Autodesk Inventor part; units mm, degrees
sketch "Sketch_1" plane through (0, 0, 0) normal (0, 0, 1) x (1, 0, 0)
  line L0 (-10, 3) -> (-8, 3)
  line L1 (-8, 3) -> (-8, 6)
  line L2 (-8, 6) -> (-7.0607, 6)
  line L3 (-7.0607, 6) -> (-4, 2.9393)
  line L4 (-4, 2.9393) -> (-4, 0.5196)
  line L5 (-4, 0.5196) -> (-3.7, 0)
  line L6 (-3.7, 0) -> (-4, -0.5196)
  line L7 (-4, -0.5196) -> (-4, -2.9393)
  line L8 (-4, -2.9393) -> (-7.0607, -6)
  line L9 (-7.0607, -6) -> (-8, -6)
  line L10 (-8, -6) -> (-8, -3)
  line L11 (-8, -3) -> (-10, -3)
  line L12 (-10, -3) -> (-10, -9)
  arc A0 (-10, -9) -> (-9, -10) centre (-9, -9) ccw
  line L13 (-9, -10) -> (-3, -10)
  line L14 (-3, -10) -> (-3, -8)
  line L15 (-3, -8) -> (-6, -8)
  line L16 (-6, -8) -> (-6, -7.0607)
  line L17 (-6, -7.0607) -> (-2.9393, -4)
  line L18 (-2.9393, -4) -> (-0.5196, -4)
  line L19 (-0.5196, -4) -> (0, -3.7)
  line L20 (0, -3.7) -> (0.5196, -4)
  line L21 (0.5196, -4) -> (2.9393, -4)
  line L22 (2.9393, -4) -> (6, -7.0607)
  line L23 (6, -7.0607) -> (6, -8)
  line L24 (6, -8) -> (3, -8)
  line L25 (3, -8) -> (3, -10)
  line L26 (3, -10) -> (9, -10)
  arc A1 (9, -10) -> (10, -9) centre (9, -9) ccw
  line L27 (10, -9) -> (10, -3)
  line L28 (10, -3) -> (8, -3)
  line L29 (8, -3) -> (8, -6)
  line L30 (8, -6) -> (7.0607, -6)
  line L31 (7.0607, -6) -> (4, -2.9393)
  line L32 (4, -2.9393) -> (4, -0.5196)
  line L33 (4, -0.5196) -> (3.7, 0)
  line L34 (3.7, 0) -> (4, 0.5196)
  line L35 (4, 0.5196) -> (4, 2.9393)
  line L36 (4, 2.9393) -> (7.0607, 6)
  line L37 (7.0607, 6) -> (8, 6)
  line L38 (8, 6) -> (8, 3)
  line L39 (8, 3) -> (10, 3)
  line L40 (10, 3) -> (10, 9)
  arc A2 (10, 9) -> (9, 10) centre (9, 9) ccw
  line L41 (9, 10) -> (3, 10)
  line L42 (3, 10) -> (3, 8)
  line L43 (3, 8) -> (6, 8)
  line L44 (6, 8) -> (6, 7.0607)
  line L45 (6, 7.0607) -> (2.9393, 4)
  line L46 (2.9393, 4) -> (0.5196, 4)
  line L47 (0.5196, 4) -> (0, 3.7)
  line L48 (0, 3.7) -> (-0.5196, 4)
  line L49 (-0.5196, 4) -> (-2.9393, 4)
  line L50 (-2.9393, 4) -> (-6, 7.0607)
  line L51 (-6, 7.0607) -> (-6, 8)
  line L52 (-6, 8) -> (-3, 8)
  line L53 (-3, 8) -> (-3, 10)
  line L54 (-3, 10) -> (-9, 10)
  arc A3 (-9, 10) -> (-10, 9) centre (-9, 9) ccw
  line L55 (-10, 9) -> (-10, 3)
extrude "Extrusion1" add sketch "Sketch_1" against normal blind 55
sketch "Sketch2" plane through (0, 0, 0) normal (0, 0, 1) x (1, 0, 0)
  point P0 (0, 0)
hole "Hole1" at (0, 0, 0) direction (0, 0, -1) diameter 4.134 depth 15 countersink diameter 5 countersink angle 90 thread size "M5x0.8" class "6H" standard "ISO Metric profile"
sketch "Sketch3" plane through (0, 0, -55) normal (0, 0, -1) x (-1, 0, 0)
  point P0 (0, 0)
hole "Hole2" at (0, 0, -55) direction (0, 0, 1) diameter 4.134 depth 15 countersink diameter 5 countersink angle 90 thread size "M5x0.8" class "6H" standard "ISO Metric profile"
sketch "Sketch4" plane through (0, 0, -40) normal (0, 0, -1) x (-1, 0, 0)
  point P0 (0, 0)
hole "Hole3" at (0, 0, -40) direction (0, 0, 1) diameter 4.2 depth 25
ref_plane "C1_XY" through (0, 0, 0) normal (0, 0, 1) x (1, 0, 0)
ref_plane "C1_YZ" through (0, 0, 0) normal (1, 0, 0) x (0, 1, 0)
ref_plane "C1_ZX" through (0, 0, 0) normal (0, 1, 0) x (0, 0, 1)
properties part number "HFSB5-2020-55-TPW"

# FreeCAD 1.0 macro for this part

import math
import FreeCAD as App
import Part
import Sketcher
Q = App.Units.Quantity

doc = App.newDocument("Part")
body = doc.addObject("PartDesign::Body", "Body")

# Sketch on XY plane
sketch1 = body.newObject("Sketcher::SketchObject", "Sketch")
sketch1.AttachmentSupport = (doc.getObject("XY_Plane"), [""])
sketch1.MapMode = "FlatFace"
sketch1.addGeometry([
    Part.LineSegment(App.Vector(-10, 9, 0), App.Vector(-10, 3, 0)),  # 0
    Part.LineSegment(App.Vector(-10, 3, 0), App.Vector(-8, 3, 0)),  # 1
    Part.LineSegment(App.Vector(-8, 3, 0), App.Vector(-8, 6, 0)),  # 2
    Part.LineSegment(App.Vector(-8, 6, 0), App.Vector(-7.1, 6, 0)),  # 3
    Part.LineSegment(App.Vector(-7.1, 6, 0), App.Vector(-4, 2.9, 0)),  # 4
    Part.LineSegment(App.Vector(-4, 2.9, 0), App.Vector(-4, 0.5, 0)),  # 5
    Part.LineSegment(App.Vector(-4, 0.5, 0), App.Vector(-3.7, 0, 0)),  # 6
    Part.LineSegment(App.Vector(-3.7, 0, 0), App.Vector(-4, -0.5, 0)),  # 7
    Part.LineSegment(App.Vector(-4, -0.5, 0), App.Vector(-4, -2.9, 0)),  # 8
    Part.LineSegment(App.Vector(-4, -2.9, 0), App.Vector(-7.1, -6, 0)),  # 9
    Part.LineSegment(App.Vector(-7.1, -6, 0), App.Vector(-8, -6, 0)),  # 10
    Part.LineSegment(App.Vector(-8, -6, 0), App.Vector(-8, -3, 0)),  # 11
    Part.LineSegment(App.Vector(-8, -3, 0), App.Vector(-10, -3, 0)),  # 12
    Part.LineSegment(App.Vector(-10, -3, 0), App.Vector(-10, -9, 0)),  # 13
    Part.ArcOfCircle(Part.Circle(App.Vector(-9, -9, 0), App.Vector(0, 0, 1), 1), math.radians(180), math.radians(270)),  # 14
    Part.LineSegment(App.Vector(-9, -10, 0), App.Vector(-3, -10, 0)),  # 15
    Part.LineSegment(App.Vector(-3, -10, 0), App.Vector(-3, -8, 0)),  # 16
    Part.LineSegment(App.Vector(-3, -8, 0), App.Vector(-6, -8, 0)),  # 17
    Part.LineSegment(App.Vector(-6, -8, 0), App.Vector(-6, -7.1, 0)),  # 18
    Part.LineSegment(App.Vector(-6, -7.1, 0), App.Vector(-2.9, -4, 0)),  # 19
    Part.LineSegment(App.Vector(-2.9, -4, 0), App.Vector(-0.5, -4, 0)),  # 20
    Part.LineSegment(App.Vector(-0.5, -4, 0), App.Vector(0, -3.7, 0)),  # 21
    Part.LineSegment(App.Vector(0, -3.7, 0), App.Vector(0.5, -4, 0)),  # 22
    Part.LineSegment(App.Vector(0.5, -4, 0), App.Vector(2.9, -4, 0)),  # 23
    Part.LineSegment(App.Vector(2.9, -4, 0), App.Vector(6, -7.1, 0)),  # 24
    Part.LineSegment(App.Vector(6, -7.1, 0), App.Vector(6, -8, 0)),  # 25
    Part.LineSegment(App.Vector(6, -8, 0), App.Vector(3, -8, 0)),  # 26
    Part.LineSegment(App.Vector(3, -8, 0), App.Vector(3, -10, 0)),  # 27
    Part.LineSegment(App.Vector(3, -10, 0), App.Vector(9, -10, 0)),  # 28
    Part.ArcOfCircle(Part.Circle(App.Vector(9, -9, 0), App.Vector(0, 0, 1), 1), math.radians(-90), math.radians(0)),  # 29
    Part.LineSegment(App.Vector(10, -9, 0), App.Vector(10, -3, 0)),  # 30
    Part.LineSegment(App.Vector(10, -3, 0), App.Vector(8, -3, 0)),  # 31
    Part.LineSegment(App.Vector(8, -3, 0), App.Vector(8, -6, 0)),  # 32
    Part.LineSegment(App.Vector(8, -6, 0), App.Vector(7.1, -6, 0)),  # 33
    Part.LineSegment(App.Vector(7.1, -6, 0), App.Vector(4, -2.9, 0)),  # 34
    Part.LineSegment(App.Vector(4, -2.9, 0), App.Vector(4, -0.5, 0)),  # 35
    Part.LineSegment(App.Vector(4, -0.5, 0), App.Vector(3.7, 0, 0)),  # 36
    Part.LineSegment(App.Vector(3.7, 0, 0), App.Vector(4, 0.5, 0)),  # 37
    Part.LineSegment(App.Vector(4, 0.5, 0), App.Vector(4, 2.9, 0)),  # 38
    Part.LineSegment(App.Vector(4, 2.9, 0), App.Vector(7.1, 6, 0)),  # 39
    Part.LineSegment(App.Vector(7.1, 6, 0), App.Vector(8, 6, 0)),  # 40
    Part.LineSegment(App.Vector(8, 6, 0), App.Vector(8, 3, 0)),  # 41
    Part.LineSegment(App.Vector(8, 3, 0), App.Vector(10, 3, 0)),  # 42
    Part.LineSegment(App.Vector(10, 3, 0), App.Vector(10, 9, 0)),  # 43
    Part.ArcOfCircle(Part.Circle(App.Vector(9, 9, 0), App.Vector(0, 0, 1), 1), math.radians(0), math.radians(90)),  # 44
    Part.LineSegment(App.Vector(9, 10, 0), App.Vector(3, 10, 0)),  # 45
    Part.LineSegment(App.Vector(3, 10, 0), App.Vector(3, 8, 0)),  # 46
    Part.LineSegment(App.Vector(3, 8, 0), App.Vector(6, 8, 0)),  # 47
    Part.LineSegment(App.Vector(6, 8, 0), App.Vector(6, 7.1, 0)),  # 48
    Part.LineSegment(App.Vector(6, 7.1, 0), App.Vector(2.9, 4, 0)),  # 49
    Part.LineSegment(App.Vector(2.9, 4, 0), App.Vector(0.5, 4, 0)),  # 50
    Part.LineSegment(App.Vector(0.5, 4, 0), App.Vector(0, 3.7, 0)),  # 51
    Part.LineSegment(App.Vector(0, 3.7, 0), App.Vector(-0.5, 4, 0)),  # 52
    Part.LineSegment(App.Vector(-0.5, 4, 0), App.Vector(-2.9, 4, 0)),  # 53
    Part.LineSegment(App.Vector(-2.9, 4, 0), App.Vector(-6, 7.1, 0)),  # 54
    Part.LineSegment(App.Vector(-6, 7.1, 0), App.Vector(-6, 8, 0)),  # 55
    Part.LineSegment(App.Vector(-6, 8, 0), App.Vector(-3, 8, 0)),  # 56
    Part.LineSegment(App.Vector(-3, 8, 0), App.Vector(-3, 10, 0)),  # 57
    Part.LineSegment(App.Vector(-3, 10, 0), App.Vector(-9, 10, 0)),  # 58
    Part.ArcOfCircle(Part.Circle(App.Vector(-9, 9, 0), App.Vector(0, 0, 1), 1), math.radians(90), math.radians(180)),  # 59
], False)
sketch1.addConstraint([
    Sketcher.Constraint("Coincident", 0, 2, 1, 1),
    Sketcher.Constraint("Coincident", 1, 2, 2, 1),
    Sketcher.Constraint("Coincident", 2, 2, 3, 1),
    Sketcher.Constraint("Coincident", 3, 2, 4, 1),
    Sketcher.Constraint("Coincident", 4, 2, 5, 1),
    Sketcher.Constraint("Coincident", 5, 2, 6, 1),
    Sketcher.Constraint("Coincident", 6, 2, 7, 1),
    Sketcher.Constraint("Coincident", 7, 2, 8, 1),
    Sketcher.Constraint("Coincident", 8, 2, 9, 1),
    Sketcher.Constraint("Coincident", 9, 2, 10, 1),
    Sketcher.Constraint("Coincident", 10, 2, 11, 1),
    Sketcher.Constraint("Coincident", 11, 2, 12, 1),
    Sketcher.Constraint("Coincident", 12, 2, 13, 1),
    Sketcher.Constraint("Tangent", 13, 2, 14, 1),
    Sketcher.Constraint("Tangent", 14, 2, 15, 1),
    Sketcher.Constraint("Coincident", 15, 2, 16, 1),
    Sketcher.Constraint("Coincident", 16, 2, 17, 1),
    Sketcher.Constraint("Coincident", 17, 2, 18, 1),
    Sketcher.Constraint("Coincident", 18, 2, 19, 1),
    Sketcher.Constraint("Coincident", 19, 2, 20, 1),
    Sketcher.Constraint("Coincident", 20, 2, 21, 1),
    Sketcher.Constraint("Coincident", 21, 2, 22, 1),
    Sketcher.Constraint("Coincident", 22, 2, 23, 1),
    Sketcher.Constraint("Coincident", 23, 2, 24, 1),
    Sketcher.Constraint("Coincident", 24, 2, 25, 1),
    Sketcher.Constraint("Coincident", 25, 2, 26, 1),
    Sketcher.Constraint("Coincident", 26, 2, 27, 1),
    Sketcher.Constraint("Coincident", 27, 2, 28, 1),
    Sketcher.Constraint("Tangent", 28, 2, 29, 1),
    Sketcher.Constraint("Tangent", 29, 2, 30, 1),
    Sketcher.Constraint("Coincident", 30, 2, 31, 1),
    Sketcher.Constraint("Coincident", 31, 2, 32, 1),
    Sketcher.Constraint("Coincident", 32, 2, 33, 1),
    Sketcher.Constraint("Coincident", 33, 2, 34, 1),
    Sketcher.Constraint("Coincident", 34, 2, 35, 1),
    Sketcher.Constraint("Coincident", 35, 2, 36, 1),
    Sketcher.Constraint("Coincident", 36, 2, 37, 1),
    Sketcher.Constraint("Coincident", 37, 2, 38, 1),
    Sketcher.Constraint("Coincident", 38, 2, 39, 1),
    Sketcher.Constraint("Coincident", 39, 2, 40, 1),
    Sketcher.Constraint("Coincident", 40, 2, 41, 1),
    Sketcher.Constraint("Coincident", 41, 2, 42, 1),
    Sketcher.Constraint("Coincident", 42, 2, 43, 1),
    Sketcher.Constraint("Tangent", 43, 2, 44, 1),
    Sketcher.Constraint("Tangent", 44, 2, 45, 1),
    Sketcher.Constraint("Coincident", 45, 2, 46, 1),
    Sketcher.Constraint("Coincident", 46, 2, 47, 1),
    Sketcher.Constraint("Coincident", 47, 2, 48, 1),
    Sketcher.Constraint("Coincident", 48, 2, 49, 1),
    Sketcher.Constraint("Coincident", 49, 2, 50, 1),
    Sketcher.Constraint("Coincident", 50, 2, 51, 1),
    Sketcher.Constraint("Coincident", 51, 2, 52, 1),
    Sketcher.Constraint("Coincident", 52, 2, 53, 1),
    Sketcher.Constraint("Coincident", 53, 2, 54, 1),
    Sketcher.Constraint("Coincident", 54, 2, 55, 1),
    Sketcher.Constraint("Coincident", 55, 2, 56, 1),
    Sketcher.Constraint("Coincident", 56, 2, 57, 1),
    Sketcher.Constraint("Coincident", 57, 2, 58, 1),
    Sketcher.Constraint("Tangent", 58, 2, 59, 1),
    Sketcher.Constraint("Tangent", 59, 2, 0, 1),
    Sketcher.Constraint("Vertical", 0),
    Sketcher.Constraint("Horizontal", 1),
    Sketcher.Constraint("Vertical", 2),
    Sketcher.Constraint("Horizontal", 3),
    Sketcher.Constraint("Vertical", 5),
    Sketcher.Constraint("Vertical", 8),
    Sketcher.Constraint("Horizontal", 10),
    Sketcher.Constraint("Vertical", 11),
    Sketcher.Constraint("Horizontal", 12),
    Sketcher.Constraint("Vertical", 13),
    Sketcher.Constraint("Horizontal", 15),
    Sketcher.Constraint("Vertical", 16),
    Sketcher.Constraint("Horizontal", 17),
    Sketcher.Constraint("Vertical", 18),
    Sketcher.Constraint("Horizontal", 20),
    Sketcher.Constraint("Horizontal", 23),
    Sketcher.Constraint("Vertical", 25),
    Sketcher.Constraint("Horizontal", 26),
    Sketcher.Constraint("Vertical", 27),
    Sketcher.Constraint("Horizontal", 28),
    Sketcher.Constraint("Vertical", 30),
    Sketcher.Constraint("Horizontal", 31),
    Sketcher.Constraint("Vertical", 32),
    Sketcher.Constraint("Horizontal", 33),
    Sketcher.Constraint("Vertical", 35),
    Sketcher.Constraint("Vertical", 38),
    Sketcher.Constraint("Horizontal", 40),
    Sketcher.Constraint("Vertical", 41),
    Sketcher.Constraint("Horizontal", 42),
    Sketcher.Constraint("Vertical", 43),
    Sketcher.Constraint("Horizontal", 45),
    Sketcher.Constraint("Vertical", 46),
    Sketcher.Constraint("Horizontal", 47),
    Sketcher.Constraint("Vertical", 48),
    Sketcher.Constraint("Horizontal", 50),
    Sketcher.Constraint("Horizontal", 53),
    Sketcher.Constraint("Vertical", 55),
    Sketcher.Constraint("Horizontal", 56),
    Sketcher.Constraint("Vertical", 57),
    Sketcher.Constraint("Horizontal", 58),
    Sketcher.Constraint("Equal", 14, 29),
    Sketcher.Constraint("Equal", 29, 44),
    Sketcher.Constraint("Equal", 44, 59),
    Sketcher.Constraint("Symmetric", 14, 3, 44, 3, -1, 1),
    Sketcher.Constraint("Symmetric", 29, 3, 59, 3, -1, 1),
    Sketcher.Constraint("Symmetric", 1, 2, 31, 2, -1, 1),
    Sketcher.Constraint("Symmetric", 3, 2, 33, 2, -1, 1),
    Sketcher.Constraint("Symmetric", 4, 2, 34, 2, -1, 1),
    Sketcher.Constraint("Symmetric", 6, 2, 36, 2, -1, 1),
    Sketcher.Constraint("Symmetric", 7, 2, 37, 2, -1, 1),
    Sketcher.Constraint("Symmetric", 9, 2, 39, 2, -1, 1),
    Sketcher.Constraint("Symmetric", 11, 2, 41, 2, -1, 1),
    Sketcher.Constraint("Symmetric", 16, 2, 46, 2, -1, 1),
    Sketcher.Constraint("Symmetric", 18, 2, 48, 2, -1, 1),
    Sketcher.Constraint("Symmetric", 19, 2, 49, 2, -1, 1),
    Sketcher.Constraint("Symmetric", 21, 2, 51, 2, -1, 1),
    Sketcher.Constraint("Symmetric", 22, 2, 52, 2, -1, 1),
    Sketcher.Constraint("Symmetric", 24, 2, 54, 2, -1, 1),
    Sketcher.Constraint("Symmetric", 26, 2, 56, 2, -1, 1),
    Sketcher.Constraint("Symmetric", 14, 3, 29, 3, -2),
    Sketcher.Constraint("Symmetric", 20, 2, 22, 2, -2),
    Sketcher.Constraint("Symmetric", 18, 2, 24, 2, -2),
    Sketcher.Constraint("Symmetric", 16, 2, 26, 2, -2),
    Sketcher.Constraint("Symmetric", 11, 2, 31, 2, -2),
    Sketcher.Constraint("Symmetric", 9, 2, 33, 2, -2),
    Sketcher.Constraint("Symmetric", 8, 2, 34, 2, -2),
    Sketcher.Constraint("PointOnObject", 6, 2, -1),
    Sketcher.Constraint("PointOnObject", 21, 2, -2),
    Sketcher.Constraint("Perpendicular", 4, 9),
    Sketcher.Constraint("Parallel", 9, 19),
    Sketcher.Constraint("Perpendicular", 6, 21),
    Sketcher.Constraint("Perpendicular", 7, 22),
    Sketcher.Constraint("Perpendicular", 19, 24),
    Sketcher.Constraint("Perpendicular", 21, 36),
    Sketcher.Constraint("Perpendicular", 34, 39),
    Sketcher.Constraint("Perpendicular", 36, 51),
    Sketcher.Constraint("Perpendicular", 49, 54),
    Sketcher.Constraint("Equal", 58, 0),
    Sketcher.Constraint("Equal", 56, 2),
    Sketcher.Constraint("Equal", 53, 5),
    Sketcher.Constraint("Equal", 42, 16),
    Sketcher.Constraint("Equal", 40, 18),
    Sketcher.Constraint("Equal", 9, 19),
    Sketcher.Constraint("Equal", 7, 21),
    Sketcher.Constraint("Radius", 14, 1.0),
    Sketcher.Constraint("DistanceX", 1, 1, 1, 2, 2.0),
    Sketcher.Constraint("DistanceX", 15, 1, 15, 2, 6.0),
    Sketcher.Constraint("DistanceX", 17, 2, 17, 1, 3.0),
    Sketcher.Constraint("Angle", 6, Q("-59.9993 deg")),
    Sketcher.Constraint("DistanceX", 14, 3, -1, 1, 9.0),
    Sketcher.Constraint("DistanceX", 4, 2, -1, 1, 4.0),
    Sketcher.Constraint("Distance", 6, 0.6),
    Sketcher.Constraint("DistanceX", 3, 1, 3, 2, 0.9393),
])
pad1 = body.newObject("PartDesign::Pad", "Pad")
pad1.Profile = sketch1
pad1.Length = 55
pad1.Reversed = True

# Sketch on XY plane
sketch2 = body.newObject("Sketcher::SketchObject", "Sketch001")
sketch2.AttachmentSupport = (doc.getObject("XY_Plane"), [""])
sketch2.MapMode = "FlatFace"
sketch2.addGeometry(Part.Circle(App.Vector(0, 0, 0), App.Vector(0, 0, 1), 2.1), False)
sketch2.addConstraint([
    Sketcher.Constraint("Coincident", 0, 3, -1, 1),
    Sketcher.Constraint("Diameter", 0, 4.134),
])
doc.recompute()
hole = body.newObject("PartDesign::Hole", "Hole")
hole.Profile = sketch2
hole.ThreadType = "None"
hole.Diameter = 4.134
hole.DepthType = "Dimension"
hole.Depth = 15
hole.DrillPoint = "Flat"
hole.HoleCutType = "Countersink"
hole.HoleCutDiameter = 5
hole.HoleCutCountersinkAngle = 90

# Sketch on XY plane
sketch3 = body.newObject("Sketcher::SketchObject", "Sketch002")
sketch3.AttachmentSupport = (doc.getObject("XY_Plane"), [""])
sketch3.MapMode = "FlatFace"
sketch3.AttachmentOffset = App.Placement(App.Vector(0, 0, -55), App.Rotation())
sketch3.addGeometry(Part.Circle(App.Vector(0, 0, 0), App.Vector(0, 0, 1), 2.1), False)
sketch3.addConstraint([
    Sketcher.Constraint("Coincident", 0, 3, -1, 1),
    Sketcher.Constraint("Diameter", 0, 4.134),
])
doc.recompute()
hole2 = body.newObject("PartDesign::Hole", "Hole001")
hole2.Profile = sketch3
hole2.ThreadType = "None"
hole2.Diameter = 4.134
hole2.DepthType = "Dimension"
hole2.Depth = 15
hole2.DrillPoint = "Flat"
hole2.HoleCutType = "Countersink"
hole2.HoleCutDiameter = 5
hole2.HoleCutCountersinkAngle = 90
hole2.Reversed = True

# Sketch on XY plane
sketch4 = body.newObject("Sketcher::SketchObject", "Sketch003")
sketch4.AttachmentSupport = (doc.getObject("XY_Plane"), [""])
sketch4.MapMode = "FlatFace"
sketch4.AttachmentOffset = App.Placement(App.Vector(0, 0, -40), App.Rotation())
sketch4.addGeometry(Part.Circle(App.Vector(0, 0, 0), App.Vector(0, 0, 1), 2.1), False)
sketch4.addConstraint([
    Sketcher.Constraint("Coincident", 0, 3, -1, 1),
    Sketcher.Constraint("Diameter", 0, 4.2),
])
doc.recompute()
hole3 = body.newObject("PartDesign::Hole", "Hole002")
hole3.Profile = sketch4
hole3.ThreadType = "None"
hole3.Diameter = 4.2
hole3.DepthType = "Dimension"
hole3.Depth = 25
hole3.DrillPoint = "Flat"
hole3.Reversed = True

doc.recompute()
